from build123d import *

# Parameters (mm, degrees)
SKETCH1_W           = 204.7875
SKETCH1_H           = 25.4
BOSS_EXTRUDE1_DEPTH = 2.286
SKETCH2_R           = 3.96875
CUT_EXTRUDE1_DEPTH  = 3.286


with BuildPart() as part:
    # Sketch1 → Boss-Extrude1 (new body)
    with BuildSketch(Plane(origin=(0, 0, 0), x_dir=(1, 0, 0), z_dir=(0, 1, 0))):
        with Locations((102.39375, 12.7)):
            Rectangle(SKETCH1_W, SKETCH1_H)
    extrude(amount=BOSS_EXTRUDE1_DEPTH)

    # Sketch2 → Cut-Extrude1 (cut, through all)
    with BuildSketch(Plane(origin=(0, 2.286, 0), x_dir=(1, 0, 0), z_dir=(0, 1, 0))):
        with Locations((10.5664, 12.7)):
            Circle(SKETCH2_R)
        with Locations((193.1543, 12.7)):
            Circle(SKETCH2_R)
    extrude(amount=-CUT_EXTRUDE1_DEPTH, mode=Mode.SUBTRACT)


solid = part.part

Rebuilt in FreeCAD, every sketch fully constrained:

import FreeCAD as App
import Part
import Sketcher

V = App.Vector
Q = App.Units.Quantity

doc = App.newDocument("Part")
body = doc.addObject("PartDesign::Body", "Body")

sketch1 = doc.addObject("Sketcher::SketchObject", "Sketch")
body.addObject(sketch1)
sketch1.AttachmentSupport = (doc.XZ_Plane, [""])
sketch1.MapMode = "FlatFace"
sketch1.addGeometry([
    Part.LineSegment(V(0, -25.4, 0), V(0, 0, 0)),
    Part.LineSegment(V(0, 0, 0), V(204.7875, 0, 0)),
    Part.LineSegment(V(204.7875, 0, 0), V(204.7875, -25.4, 0)),
    Part.LineSegment(V(204.7875, -25.4, 0), V(0, -25.4, 0)),
], False)
sketch1.addConstraint([
    Sketcher.Constraint("Coincident", 0, 2, 1, 1),
    Sketcher.Constraint("Coincident", 1, 2, 2, 1),
    Sketcher.Constraint("Coincident", 2, 2, 3, 1),
    Sketcher.Constraint("Coincident", 3, 2, 0, 1),
    Sketcher.Constraint("Vertical", 0),
    Sketcher.Constraint("Horizontal", 1),
    Sketcher.Constraint("Vertical", 2),
    Sketcher.Constraint("Horizontal", 3),
    Sketcher.Constraint("Coincident", 0, 2, -1, 1),
    Sketcher.Constraint("DistanceY", 0, 1, 0, 2, Q("1 in")),
    Sketcher.Constraint("DistanceX", 1, 1, 1, 2, Q("8.0625 in")),
])
pad1 = doc.addObject("PartDesign::Pad", "Pad")
body.addObject(pad1)
pad1.Profile = sketch1
pad1.Length = Q("0.09 in")
pad1.Reversed = True

sketch2 = doc.addObject("Sketcher::SketchObject", "Sketch001")
body.addObject(sketch2)
sketch2.AttachmentSupport = (doc.XZ_Plane, [""])
sketch2.MapMode = "FlatFace"
sketch2.AttachmentOffset = App.Placement(V(0, 0, -0.09 * 25.4), App.Rotation())
sketch2.addGeometry([
    Part.Circle(V(10.5664, -12.7, 0), V(0, 0, 1), 3.96875),
    Part.Circle(V(193.1543, -12.7, 0), V(0, 0, 1), 3.96875),
], False)
sketch2.addConstraint([
    Sketcher.Constraint("Equal", 0, 1),
    Sketcher.Constraint("Horizontal", 0, 3, 1, 3),
    Sketcher.Constraint("Diameter", 0, Q("0.3125 in")),
    Sketcher.Constraint("DistanceY", 0, 3, -1, 1, Q("0.5 in")),
    Sketcher.Constraint("DistanceX", -1, 1, 0, 3, Q("0.416 in")),
    Sketcher.Constraint("DistanceX", -1, 1, 1, 3, Q("7.6045 in")),
])
pocket1 = doc.addObject("PartDesign::Pocket", "Pocket")
body.addObject(pocket1)
pocket1.Profile = sketch2
pocket1.Type = "ThroughAll"
pocket1.Reversed = True

doc.recompute()
